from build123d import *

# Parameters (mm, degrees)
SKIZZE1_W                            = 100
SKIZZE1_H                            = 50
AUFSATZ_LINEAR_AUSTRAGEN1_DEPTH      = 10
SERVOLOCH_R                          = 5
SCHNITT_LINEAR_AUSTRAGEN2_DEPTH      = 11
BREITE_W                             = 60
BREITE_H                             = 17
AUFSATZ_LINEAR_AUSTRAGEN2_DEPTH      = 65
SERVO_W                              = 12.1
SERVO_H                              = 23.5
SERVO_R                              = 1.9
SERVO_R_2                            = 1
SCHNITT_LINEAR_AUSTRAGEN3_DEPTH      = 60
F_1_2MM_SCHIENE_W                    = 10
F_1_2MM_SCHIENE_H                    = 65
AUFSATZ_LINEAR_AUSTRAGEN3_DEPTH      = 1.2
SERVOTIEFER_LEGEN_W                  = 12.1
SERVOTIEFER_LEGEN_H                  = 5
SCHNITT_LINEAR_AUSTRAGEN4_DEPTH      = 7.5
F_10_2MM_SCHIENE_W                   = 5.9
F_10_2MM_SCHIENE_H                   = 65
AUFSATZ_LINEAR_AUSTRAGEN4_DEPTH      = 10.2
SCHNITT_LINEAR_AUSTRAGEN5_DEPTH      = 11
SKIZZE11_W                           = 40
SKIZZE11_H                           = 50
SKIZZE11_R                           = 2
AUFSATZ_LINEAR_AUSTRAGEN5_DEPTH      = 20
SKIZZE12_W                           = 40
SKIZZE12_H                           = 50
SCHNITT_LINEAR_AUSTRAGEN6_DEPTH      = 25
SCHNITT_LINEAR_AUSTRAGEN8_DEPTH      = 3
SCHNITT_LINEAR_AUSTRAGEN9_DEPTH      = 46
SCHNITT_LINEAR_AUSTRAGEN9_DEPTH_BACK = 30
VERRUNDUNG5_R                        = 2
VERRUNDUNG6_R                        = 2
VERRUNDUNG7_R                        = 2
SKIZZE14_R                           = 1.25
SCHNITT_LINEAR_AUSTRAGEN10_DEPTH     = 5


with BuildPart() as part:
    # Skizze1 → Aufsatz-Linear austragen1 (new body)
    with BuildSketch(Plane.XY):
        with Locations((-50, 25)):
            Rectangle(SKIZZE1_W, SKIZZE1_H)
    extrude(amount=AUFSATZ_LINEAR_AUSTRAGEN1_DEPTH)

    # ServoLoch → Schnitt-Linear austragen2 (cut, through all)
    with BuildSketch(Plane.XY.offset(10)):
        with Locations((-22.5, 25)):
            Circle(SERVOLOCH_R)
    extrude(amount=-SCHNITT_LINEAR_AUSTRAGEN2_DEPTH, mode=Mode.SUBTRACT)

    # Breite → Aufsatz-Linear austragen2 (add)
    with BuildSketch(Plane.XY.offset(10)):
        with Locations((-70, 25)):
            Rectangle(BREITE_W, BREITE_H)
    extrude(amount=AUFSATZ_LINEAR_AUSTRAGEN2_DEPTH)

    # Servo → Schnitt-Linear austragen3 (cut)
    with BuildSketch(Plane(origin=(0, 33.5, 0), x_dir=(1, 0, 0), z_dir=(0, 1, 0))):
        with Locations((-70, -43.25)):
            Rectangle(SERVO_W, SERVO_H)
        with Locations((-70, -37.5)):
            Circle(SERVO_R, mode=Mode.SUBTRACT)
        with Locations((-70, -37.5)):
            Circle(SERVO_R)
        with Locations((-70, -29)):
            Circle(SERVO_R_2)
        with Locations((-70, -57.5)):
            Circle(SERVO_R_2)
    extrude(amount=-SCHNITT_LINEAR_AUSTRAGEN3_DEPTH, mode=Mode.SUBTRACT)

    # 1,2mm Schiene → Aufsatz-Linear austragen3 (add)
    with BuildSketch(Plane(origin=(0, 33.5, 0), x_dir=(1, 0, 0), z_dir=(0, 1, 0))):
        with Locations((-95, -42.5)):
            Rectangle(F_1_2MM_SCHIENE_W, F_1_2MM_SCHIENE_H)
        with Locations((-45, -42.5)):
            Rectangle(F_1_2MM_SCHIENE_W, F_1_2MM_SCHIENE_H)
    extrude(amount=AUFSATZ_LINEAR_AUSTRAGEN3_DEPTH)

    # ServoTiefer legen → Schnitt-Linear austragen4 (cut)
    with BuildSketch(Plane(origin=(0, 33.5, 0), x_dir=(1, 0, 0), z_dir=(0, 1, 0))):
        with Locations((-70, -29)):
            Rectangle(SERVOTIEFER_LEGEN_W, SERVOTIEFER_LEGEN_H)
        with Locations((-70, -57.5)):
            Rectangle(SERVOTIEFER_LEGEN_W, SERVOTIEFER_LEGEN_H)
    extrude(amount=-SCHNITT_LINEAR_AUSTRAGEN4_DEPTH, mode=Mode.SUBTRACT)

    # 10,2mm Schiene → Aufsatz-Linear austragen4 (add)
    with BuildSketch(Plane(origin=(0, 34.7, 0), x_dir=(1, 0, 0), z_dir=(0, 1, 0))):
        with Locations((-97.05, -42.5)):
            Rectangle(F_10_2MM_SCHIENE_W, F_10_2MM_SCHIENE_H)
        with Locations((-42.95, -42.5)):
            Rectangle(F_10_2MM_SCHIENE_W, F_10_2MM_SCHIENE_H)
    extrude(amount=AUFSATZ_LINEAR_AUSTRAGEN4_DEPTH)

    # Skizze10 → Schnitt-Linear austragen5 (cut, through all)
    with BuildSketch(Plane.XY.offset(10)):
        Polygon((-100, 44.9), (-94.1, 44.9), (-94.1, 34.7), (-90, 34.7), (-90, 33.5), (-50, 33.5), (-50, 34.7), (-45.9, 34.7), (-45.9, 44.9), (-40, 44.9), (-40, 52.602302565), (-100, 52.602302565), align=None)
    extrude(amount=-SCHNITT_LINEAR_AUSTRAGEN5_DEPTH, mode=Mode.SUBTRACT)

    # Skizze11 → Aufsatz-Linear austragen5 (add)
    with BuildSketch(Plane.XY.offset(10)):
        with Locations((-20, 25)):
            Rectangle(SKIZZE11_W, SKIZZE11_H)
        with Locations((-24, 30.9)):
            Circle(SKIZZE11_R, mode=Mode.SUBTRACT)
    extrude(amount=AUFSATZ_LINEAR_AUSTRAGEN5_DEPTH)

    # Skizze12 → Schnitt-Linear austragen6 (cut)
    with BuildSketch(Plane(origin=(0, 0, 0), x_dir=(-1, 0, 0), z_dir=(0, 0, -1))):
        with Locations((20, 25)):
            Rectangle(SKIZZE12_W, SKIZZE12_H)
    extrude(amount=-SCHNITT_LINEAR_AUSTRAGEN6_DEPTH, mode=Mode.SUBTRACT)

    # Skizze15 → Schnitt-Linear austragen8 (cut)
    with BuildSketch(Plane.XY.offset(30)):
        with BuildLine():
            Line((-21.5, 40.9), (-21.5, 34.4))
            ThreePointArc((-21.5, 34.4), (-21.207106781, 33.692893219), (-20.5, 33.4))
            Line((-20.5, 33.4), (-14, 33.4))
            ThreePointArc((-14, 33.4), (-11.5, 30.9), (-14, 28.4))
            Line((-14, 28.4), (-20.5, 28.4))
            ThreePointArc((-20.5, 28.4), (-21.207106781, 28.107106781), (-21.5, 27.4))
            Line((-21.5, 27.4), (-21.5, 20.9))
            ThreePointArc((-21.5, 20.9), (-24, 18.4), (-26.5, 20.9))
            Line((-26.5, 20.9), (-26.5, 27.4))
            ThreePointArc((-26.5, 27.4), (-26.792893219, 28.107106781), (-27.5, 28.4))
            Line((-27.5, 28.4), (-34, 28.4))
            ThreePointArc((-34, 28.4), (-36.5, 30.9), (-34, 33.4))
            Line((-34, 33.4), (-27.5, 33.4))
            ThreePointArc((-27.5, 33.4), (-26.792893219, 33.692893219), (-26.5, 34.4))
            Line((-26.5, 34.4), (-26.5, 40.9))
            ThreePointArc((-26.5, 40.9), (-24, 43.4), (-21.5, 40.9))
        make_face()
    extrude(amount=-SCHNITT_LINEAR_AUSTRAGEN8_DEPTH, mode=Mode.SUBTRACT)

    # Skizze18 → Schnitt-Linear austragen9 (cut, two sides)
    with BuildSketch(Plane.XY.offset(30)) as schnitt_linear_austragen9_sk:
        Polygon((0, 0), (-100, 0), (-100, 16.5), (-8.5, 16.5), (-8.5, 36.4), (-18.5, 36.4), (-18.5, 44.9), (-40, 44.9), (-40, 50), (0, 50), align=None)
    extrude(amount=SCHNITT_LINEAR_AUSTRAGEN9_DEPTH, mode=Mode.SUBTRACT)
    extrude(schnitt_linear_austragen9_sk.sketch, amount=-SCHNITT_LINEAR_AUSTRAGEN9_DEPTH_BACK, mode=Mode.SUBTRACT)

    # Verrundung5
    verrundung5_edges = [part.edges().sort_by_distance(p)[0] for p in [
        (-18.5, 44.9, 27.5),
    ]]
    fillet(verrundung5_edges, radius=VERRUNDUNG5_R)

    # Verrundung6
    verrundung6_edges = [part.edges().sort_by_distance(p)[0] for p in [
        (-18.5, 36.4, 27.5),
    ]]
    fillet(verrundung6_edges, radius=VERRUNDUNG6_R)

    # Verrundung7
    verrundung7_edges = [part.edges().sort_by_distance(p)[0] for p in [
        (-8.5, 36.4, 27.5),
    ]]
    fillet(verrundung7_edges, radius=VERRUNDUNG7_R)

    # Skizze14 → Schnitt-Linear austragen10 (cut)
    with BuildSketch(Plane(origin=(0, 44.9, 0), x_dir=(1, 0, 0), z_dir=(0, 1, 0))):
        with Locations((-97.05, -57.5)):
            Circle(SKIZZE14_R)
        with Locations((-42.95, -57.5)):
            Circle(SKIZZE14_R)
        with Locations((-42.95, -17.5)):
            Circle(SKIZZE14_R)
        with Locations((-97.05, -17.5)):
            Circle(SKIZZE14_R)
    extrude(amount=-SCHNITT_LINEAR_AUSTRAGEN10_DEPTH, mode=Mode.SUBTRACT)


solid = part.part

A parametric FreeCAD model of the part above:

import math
import FreeCAD as App
import Part
import Sketcher
from FreeCAD import Vector


def edges_at(feature, points):
    """Names of the edges that pass closest to the given points."""
    edges = feature.Shape.Edges
    near = lambda p: min(range(len(edges)), key=lambda i: edges[i].distToShape(Part.Vertex(*p))[0])
    return sorted({f"Edge{near(p) + 1}" for p in points})

doc = App.newDocument("Part")
body = doc.addObject("PartDesign::Body", "Body")

# Sketch on XY plane
sketch1 = body.newObject("Sketcher::SketchObject", "Sketch")
sketch1.AttachmentSupport = (doc.getObject("XY_Plane"), [""])
sketch1.MapMode = "FlatFace"
sketch1.addGeometry([
    Part.LineSegment(Vector(-100, 50, 0), Vector(-100, 0, 0)),
    Part.LineSegment(Vector(-100, 0, 0), Vector(0, 0, 0)),
    Part.LineSegment(Vector(0, 0, 0), Vector(0, 50, 0)),
    Part.LineSegment(Vector(0, 50, 0), Vector(-100, 50, 0)),
], False)
sketch1.addConstraint([
    Sketcher.Constraint("Coincident", 0, 2, 1, 1),
    Sketcher.Constraint("Coincident", 1, 2, 2, 1),
    Sketcher.Constraint("Coincident", 2, 2, 3, 1),
    Sketcher.Constraint("Coincident", 3, 2, 0, 1),
    Sketcher.Constraint("Vertical", 0),
    Sketcher.Constraint("Horizontal", 1),
    Sketcher.Constraint("Vertical", 2),
    Sketcher.Constraint("Horizontal", 3),
    Sketcher.Constraint("Coincident", 1, 2, -1, 1),
    Sketcher.Constraint("DistanceX", 1, 1, 1, 2, 100.0),
    Sketcher.Constraint("DistanceY", 0, 2, 0, 1, 50.0),
])
pad1 = body.newObject("PartDesign::Pad", "Pad")
pad1.Profile = sketch1
pad1.Length = 10

# Sketch on XY plane
sketch2 = body.newObject("Sketcher::SketchObject", "Sketch001")
sketch2.AttachmentSupport = (doc.getObject("XY_Plane"), [""])
sketch2.MapMode = "FlatFace"
sketch2.AttachmentOffset = App.Placement(Vector(0, 0, 10), App.Rotation())
sketch2.addGeometry(Part.Circle(Vector(-22, 25, 0), Vector(0, 0, 1), 5), False)
sketch2.addConstraint([
    Sketcher.Constraint("Diameter", 0, 10.0),
    Sketcher.Constraint("DistanceY", -1, 1, 0, 3, 25.0),
    Sketcher.Constraint("DistanceX", 0, 3, -1, 1, 22.5),
])
pocket1 = body.newObject("PartDesign::Pocket", "Pocket")
pocket1.Profile = sketch2
pocket1.Type = "ThroughAll"

# Sketch on XY plane
sketch3 = body.newObject("Sketcher::SketchObject", "Sketch002")
sketch3.AttachmentSupport = (doc.getObject("XY_Plane"), [""])
sketch3.MapMode = "FlatFace"
sketch3.AttachmentOffset = App.Placement(Vector(0, 0, 10), App.Rotation())
sketch3.addGeometry([
    Part.LineSegment(Vector(-100, 34, 0), Vector(-100, 16, 0)),
    Part.LineSegment(Vector(-100, 16, 0), Vector(-40, 16, 0)),
    Part.LineSegment(Vector(-40, 16, 0), Vector(-40, 34, 0)),
    Part.LineSegment(Vector(-40, 34, 0), Vector(-100, 34, 0)),
], False)
sketch3.addConstraint([
    Sketcher.Constraint("Coincident", 0, 2, 1, 1),
    Sketcher.Constraint("Coincident", 1, 2, 2, 1),
    Sketcher.Constraint("Coincident", 2, 2, 3, 1),
    Sketcher.Constraint("Coincident", 3, 2, 0, 1),
    Sketcher.Constraint("Vertical", 0),
    Sketcher.Constraint("Horizontal", 1),
    Sketcher.Constraint("Vertical", 2),
    Sketcher.Constraint("Horizontal", 3),
    Sketcher.Constraint("DistanceX", 1, 1, 1, 2, 60.0),
    Sketcher.Constraint("DistanceY", 0, 2, 0, 1, 17.0),
    Sketcher.Constraint("DistanceX", 0, 2, -1, 1, 100.0),
    Sketcher.Constraint("DistanceY", -1, 1, 0, 2, 16.5),
])
pad2 = body.newObject("PartDesign::Pad", "Pad001")
pad2.Profile = sketch3
pad2.Length = 65

# Sketch on XZ plane
sketch4 = body.newObject("Sketcher::SketchObject", "Sketch003")
sketch4.AttachmentSupport = (doc.getObject("XZ_Plane"), [""])
sketch4.MapMode = "FlatFace"
sketch4.AttachmentOffset = App.Placement(Vector(0, 0, -33.5), App.Rotation())
sketch4.addGeometry([
    Part.LineSegment(Vector(-76, 31.5, 0), Vector(-76, 55, 0)),  # 0
    Part.LineSegment(Vector(-76, 55, 0), Vector(-64, 55, 0)),  # 1
    Part.LineSegment(Vector(-64, 55, 0), Vector(-64, 31.5, 0)),  # 2
    Part.LineSegment(Vector(-64, 31.5, 0), Vector(-76, 31.5, 0)),  # 3
    Part.Circle(Vector(-70, 29, 0), Vector(0, 0, 1), 1),  # 4
    Part.Circle(Vector(-70, 57.5, 0), Vector(0, 0, 1), 1),  # 5
], False)
sketch4.addConstraint([
    Sketcher.Constraint("Coincident", 0, 2, 1, 1),
    Sketcher.Constraint("Coincident", 1, 2, 2, 1),
    Sketcher.Constraint("Coincident", 2, 2, 3, 1),
    Sketcher.Constraint("Coincident", 3, 2, 0, 1),
    Sketcher.Constraint("Vertical", 0),
    Sketcher.Constraint("Horizontal", 1),
    Sketcher.Constraint("Vertical", 2),
    Sketcher.Constraint("Horizontal", 3),
    Sketcher.Constraint("Equal", 4, 5),
    Sketcher.Constraint("Vertical", 4, 3, 5, 3),
    Sketcher.Constraint("Diameter", 4, 2.0),
    Sketcher.Constraint("DistanceX", 1, 1, 1, 2, 12.1),
    Sketcher.Constraint("DistanceY", 0, 1, 0, 2, 23.5),
    Sketcher.Constraint("DistanceX", 4, 3, -1, 1, 70.0),
    Sketcher.Constraint("DistanceY", -1, 1, 4, 3, 29.0),
    Sketcher.Constraint("DistanceY", -1, 1, 0, 2, 55.0),
    Sketcher.Constraint("DistanceY", 2, 2, 5, 3, 26.0),
    Sketcher.Constraint("DistanceX", 0, 2, -1, 1, 76.05),
])
pocket2 = body.newObject("PartDesign::Pocket", "Pocket001")
pocket2.Profile = sketch4
pocket2.Length = 60
pocket2.Reversed = True

# Sketch on XZ plane
sketch5 = body.newObject("Sketcher::SketchObject", "Sketch004")
sketch5.AttachmentSupport = (doc.getObject("XZ_Plane"), [""])
sketch5.MapMode = "FlatFace"
sketch5.AttachmentOffset = App.Placement(Vector(0, 0, -33.5), App.Rotation())
sketch5.addGeometry([
    Part.LineSegment(Vector(-100, 10, 0), Vector(-100, 75, 0)),  # 0
    Part.LineSegment(Vector(-100, 75, 0), Vector(-90, 75, 0)),  # 1
    Part.LineSegment(Vector(-90, 75, 0), Vector(-90, 10, 0)),  # 2
    Part.LineSegment(Vector(-90, 10, 0), Vector(-100, 10, 0)),  # 3
    Part.LineSegment(Vector(-50, 10, 0), Vector(-50, 75, 0)),  # 4
    Part.LineSegment(Vector(-50, 75, 0), Vector(-40, 75, 0)),  # 5
    Part.LineSegment(Vector(-40, 75, 0), Vector(-40, 10, 0)),  # 6
    Part.LineSegment(Vector(-40, 10, 0), Vector(-50, 10, 0)),  # 7
], False)
sketch5.addConstraint([
    Sketcher.Constraint("Coincident", 0, 2, 1, 1),
    Sketcher.Constraint("Coincident", 1, 2, 2, 1),
    Sketcher.Constraint("Coincident", 2, 2, 3, 1),
    Sketcher.Constraint("Coincident", 3, 2, 0, 1),
    Sketcher.Constraint("Coincident", 4, 2, 5, 1),
    Sketcher.Constraint("Coincident", 5, 2, 6, 1),
    Sketcher.Constraint("Coincident", 6, 2, 7, 1),
    Sketcher.Constraint("Coincident", 7, 2, 4, 1),
    Sketcher.Constraint("Vertical", 0),
    Sketcher.Constraint("Horizontal", 1),
    Sketcher.Constraint("Vertical", 2),
    Sketcher.Constraint("Horizontal", 3),
    Sketcher.Constraint("Vertical", 4),
    Sketcher.Constraint("Horizontal", 5),
    Sketcher.Constraint("Vertical", 6),
    Sketcher.Constraint("Horizontal", 7),
    Sketcher.Constraint("Horizontal", 1, 2, 4, 2),
    Sketcher.Constraint("Horizontal", 3, 2, 6, 2),
    Sketcher.Constraint("Equal", 3, 5),
    Sketcher.Constraint("DistanceX", 1, 1, 1, 2, 10.0),
    Sketcher.Constraint("DistanceY", 0, 1, 0, 2, 65.0),
    Sketcher.Constraint("DistanceX", 0, 2, -1, 1, 100.0),
    Sketcher.Constraint("DistanceY", -1, 1, 0, 2, 75.0),
    Sketcher.Constraint("DistanceX", 4, 2, -1, 1, 50.0),
])
pad3 = body.newObject("PartDesign::Pad", "Pad002")
pad3.Profile = sketch5
pad3.Length = 1.2
pad3.Reversed = True

# Sketch on XZ plane
sketch6 = body.newObject("Sketcher::SketchObject", "Sketch005")
sketch6.AttachmentSupport = (doc.getObject("XZ_Plane"), [""])
sketch6.MapMode = "FlatFace"
sketch6.AttachmentOffset = App.Placement(Vector(0, 0, -33.5), App.Rotation())
sketch6.addGeometry([
    Part.LineSegment(Vector(-76, 26, 0), Vector(-76, 32, 0)),  # 0
    Part.LineSegment(Vector(-76, 32, 0), Vector(-64, 32, 0)),  # 1
    Part.LineSegment(Vector(-64, 32, 0), Vector(-64, 26, 0)),  # 2
    Part.LineSegment(Vector(-64, 26, 0), Vector(-76, 26, 0)),  # 3
    Part.LineSegment(Vector(-76, 55, 0), Vector(-76, 60, 0)),  # 4
    Part.LineSegment(Vector(-76, 60, 0), Vector(-64, 60, 0)),  # 5
    Part.LineSegment(Vector(-64, 60, 0), Vector(-64, 55, 0)),  # 6
    Part.LineSegment(Vector(-64, 55, 0), Vector(-76, 55, 0)),  # 7
], False)
sketch6.addConstraint([
    Sketcher.Constraint("Coincident", 0, 2, 1, 1),
    Sketcher.Constraint("Coincident", 1, 2, 2, 1),
    Sketcher.Constraint("Coincident", 2, 2, 3, 1),
    Sketcher.Constraint("Coincident", 3, 2, 0, 1),
    Sketcher.Constraint("Coincident", 4, 2, 5, 1),
    Sketcher.Constraint("Coincident", 5, 2, 6, 1),
    Sketcher.Constraint("Coincident", 6, 2, 7, 1),
    Sketcher.Constraint("Coincident", 7, 2, 4, 1),
    Sketcher.Constraint("Vertical", 0),
    Sketcher.Constraint("Horizontal", 1),
    Sketcher.Constraint("Vertical", 2),
    Sketcher.Constraint("Horizontal", 3),
    Sketcher.Constraint("Vertical", 4),
    Sketcher.Constraint("Horizontal", 5),
    Sketcher.Constraint("Vertical", 6),
    Sketcher.Constraint("Horizontal", 7),
    Sketcher.Constraint("Vertical", 3, 2, 4, 2),
    Sketcher.Constraint("Vertical", 2, 2, 5, 2),
    Sketcher.Constraint("Equal", 2, 4),
    Sketcher.Constraint("DistanceY", 0, 1, 0, 2, 5.0),
    Sketcher.Constraint("DistanceX", 1, 1, 1, 2, 12.1),
    Sketcher.Constraint("DistanceY", -1, 1, 4, 2, 60.0),
    Sketcher.Constraint("DistanceY", -1, 1, 0, 2, 31.5),
    Sketcher.Constraint("DistanceX", 0, 2, -1, 1, 76.05),
])
pocket3 = body.newObject("PartDesign::Pocket", "Pocket002")
pocket3.Profile = sketch6
pocket3.Length = 7.5
pocket3.Reversed = True

# Sketch on XZ plane
sketch7 = body.newObject("Sketcher::SketchObject", "Sketch006")
sketch7.AttachmentSupport = (doc.getObject("XZ_Plane"), [""])
sketch7.MapMode = "FlatFace"
sketch7.AttachmentOffset = App.Placement(Vector(0, 0, -34.7), App.Rotation())
sketch7.addGeometry([
    Part.LineSegment(Vector(-100, 10, 0), Vector(-100, 75, 0)),  # 0
    Part.LineSegment(Vector(-100, 75, 0), Vector(-94, 75, 0)),  # 1
    Part.LineSegment(Vector(-94, 75, 0), Vector(-94, 10, 0)),  # 2
    Part.LineSegment(Vector(-94, 10, 0), Vector(-100, 10, 0)),  # 3
    Part.LineSegment(Vector(-46, 10, 0), Vector(-46, 75, 0)),  # 4
    Part.LineSegment(Vector(-46, 75, 0), Vector(-40, 75, 0)),  # 5
    Part.LineSegment(Vector(-40, 75, 0), Vector(-40, 10, 0)),  # 6
    Part.LineSegment(Vector(-40, 10, 0), Vector(-46, 10, 0)),  # 7
], False)
sketch7.addConstraint([
    Sketcher.Constraint("Coincident", 0, 2, 1, 1),
    Sketcher.Constraint("Coincident", 1, 2, 2, 1),
    Sketcher.Constraint("Coincident", 2, 2, 3, 1),
    Sketcher.Constraint("Coincident", 3, 2, 0, 1),
    Sketcher.Constraint("Coincident", 4, 2, 5, 1),
    Sketcher.Constraint("Coincident", 5, 2, 6, 1),
    Sketcher.Constraint("Coincident", 6, 2, 7, 1),
    Sketcher.Constraint("Coincident", 7, 2, 4, 1),
    Sketcher.Constraint("Vertical", 0),
    Sketcher.Constraint("Horizontal", 1),
    Sketcher.Constraint("Vertical", 2),
    Sketcher.Constraint("Horizontal", 3),
    Sketcher.Constraint("Vertical", 4),
    Sketcher.Constraint("Horizontal", 5),
    Sketcher.Constraint("Vertical", 6),
    Sketcher.Constraint("Horizontal", 7),
    Sketcher.Constraint("Horizontal", 1, 2, 4, 2),
    Sketcher.Constraint("Horizontal", 3, 2, 6, 2),
    Sketcher.Constraint("Equal", 3, 5),
    Sketcher.Constraint("DistanceY", 0, 1, 0, 2, 65.0),
    Sketcher.Constraint("DistanceX", 1, 1, 1, 2, 5.9),
    Sketcher.Constraint("DistanceX", 0, 2, -1, 1, 100.0),
    Sketcher.Constraint("DistanceY", -1, 1, 0, 2, 75.0),
    Sketcher.Constraint("DistanceX", 5, 2, -1, 1, 40.0),
])
pad4 = body.newObject("PartDesign::Pad", "Pad003")
pad4.Profile = sketch7
pad4.Length = 10.2
pad4.Reversed = True

# Sketch on XY plane
sketch8 = body.newObject("Sketcher::SketchObject", "Sketch007")
sketch8.AttachmentSupport = (doc.getObject("XY_Plane"), [""])
sketch8.MapMode = "FlatFace"
sketch8.AttachmentOffset = App.Placement(Vector(0, 0, 10), App.Rotation())
sketch8.addGeometry([
    Part.LineSegment(Vector(-100, 44.9, 0), Vector(-94.1, 44.9, 0)),  # 0
    Part.LineSegment(Vector(-94.1, 44.9, 0), Vector(-94.1, 34.7, 0)),  # 1
    Part.LineSegment(Vector(-94.1, 34.7, 0), Vector(-90, 34.7, 0)),  # 2
    Part.LineSegment(Vector(-90, 34.7, 0), Vector(-90, 33.5, 0)),  # 3
    Part.LineSegment(Vector(-90, 33.5, 0), Vector(-50, 33.5, 0)),  # 4
    Part.LineSegment(Vector(-50, 33.5, 0), Vector(-50, 34.7, 0)),  # 5
    Part.LineSegment(Vector(-50, 34.7, 0), Vector(-45.9, 34.7, 0)),  # 6
    Part.LineSegment(Vector(-45.9, 34.7, 0), Vector(-45.9, 44.9, 0)),  # 7
    Part.LineSegment(Vector(-45.9, 44.9, 0), Vector(-40, 44.9, 0)),  # 8
    Part.LineSegment(Vector(-40, 44.9, 0), Vector(-40, 52.6, 0)),  # 9
    Part.LineSegment(Vector(-40, 52.6, 0), Vector(-100, 52.6, 0)),  # 10
    Part.LineSegment(Vector(-100, 52.6, 0), Vector(-100, 44.9, 0)),  # 11
], False)
sketch8.addConstraint([
    Sketcher.Constraint("Coincident", 0, 2, 1, 1),
    Sketcher.Constraint("Coincident", 1, 2, 2, 1),
    Sketcher.Constraint("Coincident", 2, 2, 3, 1),
    Sketcher.Constraint("Coincident", 3, 2, 4, 1),
    Sketcher.Constraint("Coincident", 4, 2, 5, 1),
    Sketcher.Constraint("Coincident", 5, 2, 6, 1),
    Sketcher.Constraint("Coincident", 6, 2, 7, 1),
    Sketcher.Constraint("Coincident", 7, 2, 8, 1),
    Sketcher.Constraint("Coincident", 8, 2, 9, 1),
    Sketcher.Constraint("Coincident", 9, 2, 10, 1),
    Sketcher.Constraint("Coincident", 10, 2, 11, 1),
    Sketcher.Constraint("Coincident", 11, 2, 0, 1),
    Sketcher.Constraint("Horizontal", 0),
    Sketcher.Constraint("Vertical", 1),
    Sketcher.Constraint("Horizontal", 2),
    Sketcher.Constraint("Vertical", 3),
    Sketcher.Constraint("Horizontal", 4),
    Sketcher.Constraint("Vertical", 5),
    Sketcher.Constraint("Horizontal", 6),
    Sketcher.Constraint("Vertical", 7),
    Sketcher.Constraint("Horizontal", 8),
    Sketcher.Constraint("Vertical", 9),
    Sketcher.Constraint("Horizontal", 10),
    Sketcher.Constraint("Vertical", 11),
    Sketcher.Constraint("Horizontal", 2, 2, 5, 2),
    Sketcher.Constraint("Horizontal", 0, 2, 7, 2),
    Sketcher.Constraint("Equal", 2, 6),
    Sketcher.Constraint("Equal", 0, 8),
    Sketcher.Constraint("DistanceX", 4, 1, 4, 2, 40.0),
    Sketcher.Constraint("DistanceX", 10, 2, 10, 1, 60.0),
    Sketcher.Constraint("DistanceX", 0, 1, 0, 2, 5.9),
    Sketcher.Constraint("DistanceY", 1, 2, 1, 1, 10.2),
    Sketcher.Constraint("DistanceY", 3, 2, 3, 1, 1.2),
    Sketcher.Constraint("DistanceX", 2, 2, -1, 1, 90.0),
    Sketcher.Constraint("DistanceY", -1, 1, 0, 2, 44.9),
    Sketcher.Constraint("DistanceY", 9, 1, 9, 2, 7.702303),
])
pocket4 = body.newObject("PartDesign::Pocket", "Pocket003")
pocket4.Profile = sketch8
pocket4.Type = "ThroughAll"

# Sketch on XY plane
sketch9 = body.newObject("Sketcher::SketchObject", "Sketch008")
sketch9.AttachmentSupport = (doc.getObject("XY_Plane"), [""])
sketch9.MapMode = "FlatFace"
sketch9.AttachmentOffset = App.Placement(Vector(0, 0, 10), App.Rotation())
sketch9.addGeometry([
    Part.LineSegment(Vector(-40, 50, 0), Vector(-40, 0, 0)),  # 0
    Part.LineSegment(Vector(-40, 0, 0), Vector(0, 0, 0)),  # 1
    Part.LineSegment(Vector(0, 0, 0), Vector(0, 50, 0)),  # 2
    Part.LineSegment(Vector(0, 50, 0), Vector(-40, 50, 0)),  # 3
    Part.Circle(Vector(-24, 30.9, 0), Vector(0, 0, 1), 2),  # 4
], False)
sketch9.addConstraint([
    Sketcher.Constraint("Coincident", 0, 2, 1, 1),
    Sketcher.Constraint("Coincident", 1, 2, 2, 1),
    Sketcher.Constraint("Coincident", 2, 2, 3, 1),
    Sketcher.Constraint("Coincident", 3, 2, 0, 1),
    Sketcher.Constraint("Vertical", 0),
    Sketcher.Constraint("Horizontal", 1),
    Sketcher.Constraint("Vertical", 2),
    Sketcher.Constraint("Horizontal", 3),
    Sketcher.Constraint("Coincident", 1, 2, -1, 1),
    Sketcher.Constraint("Diameter", 4, 4.0),
    Sketcher.Constraint("DistanceX", 1, 1, 1, 2, 40.0),
    Sketcher.Constraint("DistanceY", 0, 2, 0, 1, 50.0),
    Sketcher.Constraint("DistanceX", 4, 3, -1, 1, 24.0),
    Sketcher.Constraint("DistanceY", -1, 1, 4, 3, 30.9),
])
pad5 = body.newObject("PartDesign::Pad", "Pad004")
pad5.Profile = sketch9
pad5.Length = 20

# Sketch on XY plane
sketch10 = body.newObject("Sketcher::SketchObject", "Sketch009")
sketch10.AttachmentSupport = (doc.getObject("XY_Plane"), [""])
sketch10.MapMode = "FlatFace"
sketch10.addGeometry([
    Part.LineSegment(Vector(0, 50, 0), Vector(0, 0, 0)),
    Part.LineSegment(Vector(0, 0, 0), Vector(-40, 0, 0)),
    Part.LineSegment(Vector(-40, 0, 0), Vector(-40, 50, 0)),
    Part.LineSegment(Vector(-40, 50, 0), Vector(0, 50, 0)),
], False)
sketch10.addConstraint([
    Sketcher.Constraint("Coincident", 0, 2, 1, 1),
    Sketcher.Constraint("Coincident", 1, 2, 2, 1),
    Sketcher.Constraint("Coincident", 2, 2, 3, 1),
    Sketcher.Constraint("Coincident", 3, 2, 0, 1),
    Sketcher.Constraint("Vertical", 0),
    Sketcher.Constraint("Horizontal", 1),
    Sketcher.Constraint("Vertical", 2),
    Sketcher.Constraint("Horizontal", 3),
    Sketcher.Constraint("Coincident", 0, 2, -1, 1),
    Sketcher.Constraint("DistanceX", 1, 2, 1, 1, 40.0),
    Sketcher.Constraint("DistanceY", 0, 2, 0, 1, 50.0),
])
pocket5 = body.newObject("PartDesign::Pocket", "Pocket004")
pocket5.Profile = sketch10
pocket5.Length = 25
pocket5.Reversed = True

# Sketch on XY plane
sketch11 = body.newObject("Sketcher::SketchObject", "Sketch010")
sketch11.AttachmentSupport = (doc.getObject("XY_Plane"), [""])
sketch11.MapMode = "FlatFace"
sketch11.AttachmentOffset = App.Placement(Vector(0, 0, 30), App.Rotation())
sketch11.addGeometry([
    Part.LineSegment(Vector(-21.5, 34.4, 0), Vector(-21.5, 40.9, 0)),  # 0
    Part.ArcOfCircle(Part.Circle(Vector(-24, 40.9, 0), Vector(0, 0, 1), 2.5), math.radians(0), math.radians(180)),  # 1
    Part.LineSegment(Vector(-26.5, 40.9, 0), Vector(-26.5, 34.4, 0)),  # 2
    Part.ArcOfCircle(Part.Circle(Vector(-27.5, 34.4, 0), Vector(0, 0, 1), 1), math.radians(-90), math.radians(0)),  # 3
    Part.LineSegment(Vector(-27.5, 33.4, 0), Vector(-34, 33.4, 0)),  # 4
    Part.ArcOfCircle(Part.Circle(Vector(-34, 30.9, 0), Vector(0, 0, 1), 2.5), math.radians(90), math.radians(270)),  # 5
    Part.LineSegment(Vector(-34, 28.4, 0), Vector(-27.5, 28.4, 0)),  # 6
    Part.ArcOfCircle(Part.Circle(Vector(-27.5, 27.4, 0), Vector(0, 0, 1), 1), math.radians(0), math.radians(90)),  # 7
    Part.LineSegment(Vector(-26.5, 27.4, 0), Vector(-26.5, 20.9, 0)),  # 8
    Part.ArcOfCircle(Part.Circle(Vector(-24, 20.9, 0), Vector(0, 0, 1), 2.5), math.radians(180), math.radians(360)),  # 9
    Part.LineSegment(Vector(-21.5, 20.9, 0), Vector(-21.5, 27.4, 0)),  # 10
    Part.ArcOfCircle(Part.Circle(Vector(-20.5, 27.4, 0), Vector(0, 0, 1), 1), math.radians(90), math.radians(180)),  # 11
    Part.LineSegment(Vector(-20.5, 28.4, 0), Vector(-14, 28.4, 0)),  # 12
    Part.ArcOfCircle(Part.Circle(Vector(-14, 30.9, 0), Vector(0, 0, 1), 2.5), math.radians(-90), math.radians(90)),  # 13
    Part.LineSegment(Vector(-14, 33.4, 0), Vector(-20.5, 33.4, 0)),  # 14
    Part.ArcOfCircle(Part.Circle(Vector(-20.5, 34.4, 0), Vector(0, 0, 1), 1), math.radians(-180), math.radians(-90)),  # 15
], False)
sketch11.addConstraint([
    Sketcher.Constraint("Tangent", 0, 2, 1, 1),
    Sketcher.Constraint("Tangent", 1, 2, 2, 1),
    Sketcher.Constraint("Tangent", 2, 2, 3, 2),
    Sketcher.Constraint("Tangent", 3, 1, 4, 1),
    Sketcher.Constraint("Tangent", 4, 2, 5, 1),
    Sketcher.Constraint("Tangent", 5, 2, 6, 1),
    Sketcher.Constraint("Tangent", 6, 2, 7, 2),
    Sketcher.Constraint("Tangent", 7, 1, 8, 1),
    Sketcher.Constraint("Tangent", 8, 2, 9, 1),
    Sketcher.Constraint("Tangent", 9, 2, 10, 1),
    Sketcher.Constraint("Tangent", 10, 2, 11, 2),
    Sketcher.Constraint("Tangent", 11, 1, 12, 1),
    Sketcher.Constraint("Tangent", 12, 2, 13, 1),
    Sketcher.Constraint("Tangent", 13, 2, 14, 1),
    Sketcher.Constraint("Tangent", 14, 2, 15, 2),
    Sketcher.Constraint("Tangent", 15, 1, 0, 1),
    Sketcher.Constraint("Vertical", 0),
    Sketcher.Constraint("Vertical", 2),
    Sketcher.Constraint("Horizontal", 4),
    Sketcher.Constraint("Horizontal", 6),
    Sketcher.Constraint("Vertical", 8),
    Sketcher.Constraint("Vertical", 10),
    Sketcher.Constraint("Horizontal", 12),
    Sketcher.Constraint("Horizontal", 14),
    Sketcher.Constraint("Equal", 1, 5),
    Sketcher.Constraint("Equal", 3, 7),
    Sketcher.Constraint("Equal", 5, 9),
    Sketcher.Constraint("Equal", 7, 11),
    Sketcher.Constraint("Equal", 9, 13),
    Sketcher.Constraint("Equal", 11, 15),
    Sketcher.Constraint("Horizontal", 7, 3, 11, 3),
    Sketcher.Constraint("Vertical", 3, 3, 7, 3),
    Sketcher.Constraint("Equal", 6, 12),
    Sketcher.Constraint("Equal", 14, 0),
    Sketcher.Constraint("Equal", 2, 8),
    Sketcher.Constraint("Radius", 3, 1.0),
    Sketcher.Constraint("Radius", 1, 2.5),
    Sketcher.Constraint("DistanceX", 4, 2, 4, 1, 6.5),
    Sketcher.Constraint("DistanceX", 1, 3, -1, 1, 24.0),
    Sketcher.Constraint("DistanceY", -1, 1, 1, 3, 40.9),
])
pocket6 = body.newObject("PartDesign::Pocket", "Pocket005")
pocket6.Profile = sketch11
pocket6.Length = 3

# Sketch on XY plane
sketch12 = body.newObject("Sketcher::SketchObject", "Sketch011")
sketch12.AttachmentSupport = (doc.getObject("XY_Plane"), [""])
sketch12.MapMode = "FlatFace"
sketch12.AttachmentOffset = App.Placement(Vector(0, 0, 30), App.Rotation())
sketch12.addGeometry([
    Part.LineSegment(Vector(-100, 0, 0), Vector(0, 0, 0)),  # 0
    Part.LineSegment(Vector(0, 0, 0), Vector(0, 50, 0)),  # 1
    Part.LineSegment(Vector(0, 50, 0), Vector(-40, 50, 0)),  # 2
    Part.LineSegment(Vector(-40, 50, 0), Vector(-40, 45, 0)),  # 3
    Part.LineSegment(Vector(-40, 45, 0), Vector(-18, 45, 0)),  # 4
    Part.LineSegment(Vector(-18, 45, 0), Vector(-18, 36, 0)),  # 5
    Part.LineSegment(Vector(-18, 36, 0), Vector(-8, 36, 0)),  # 6
    Part.LineSegment(Vector(-8, 36, 0), Vector(-8, 16, 0)),  # 7
    Part.LineSegment(Vector(-8, 16, 0), Vector(-100, 16, 0)),  # 8
    Part.LineSegment(Vector(-100, 16, 0), Vector(-100, 0, 0)),  # 9
], False)
sketch12.addConstraint([
    Sketcher.Constraint("Coincident", 0, 2, 1, 1),
    Sketcher.Constraint("Coincident", 1, 2, 2, 1),
    Sketcher.Constraint("Coincident", 2, 2, 3, 1),
    Sketcher.Constraint("Coincident", 3, 2, 4, 1),
    Sketcher.Constraint("Coincident", 4, 2, 5, 1),
    Sketcher.Constraint("Coincident", 5, 2, 6, 1),
    Sketcher.Constraint("Coincident", 6, 2, 7, 1),
    Sketcher.Constraint("Coincident", 7, 2, 8, 1),
    Sketcher.Constraint("Coincident", 8, 2, 9, 1),
    Sketcher.Constraint("Coincident", 9, 2, 0, 1),
    Sketcher.Constraint("Horizontal", 0),
    Sketcher.Constraint("Vertical", 1),
    Sketcher.Constraint("Horizontal", 2),
    Sketcher.Constraint("Vertical", 3),
    Sketcher.Constraint("Horizontal", 4),
    Sketcher.Constraint("Vertical", 5),
    Sketcher.Constraint("Horizontal", 6),
    Sketcher.Constraint("Vertical", 7),
    Sketcher.Constraint("Horizontal", 8),
    Sketcher.Constraint("Vertical", 9),
    Sketcher.Constraint("Coincident", 0, 2, -1, 1),
    Sketcher.Constraint("DistanceX", 0, 1, 0, 2, 100.0),
    Sketcher.Constraint("DistanceX", 2, 2, 2, 1, 40.0),
    Sketcher.Constraint("DistanceX", 6, 1, 6, 2, 10.0),
    Sketcher.Constraint("DistanceY", 1, 1, 1, 2, 50.0),
    Sketcher.Constraint("DistanceX", 4, 1, 4, 2, 21.5),
    Sketcher.Constraint("DistanceY", 3, 2, 3, 1, 5.1),
    Sketcher.Constraint("DistanceY", 5, 2, 5, 1, 8.5),
    Sketcher.Constraint("DistanceY", 7, 2, 7, 1, 19.9),
])
pocket7 = body.newObject("PartDesign::Pocket", "Pocket006")
pocket7.Profile = sketch12
pocket7.Type = "ThroughAll"
pocket7.Midplane = True
doc.recompute()

fillet = body.newObject("PartDesign::Fillet", "Fillet")
fillet.Base = (pocket7, edges_at(pocket7, [(-18.5, 44.9, 27.5)]))
fillet.Radius = 2
doc.recompute()

fillet2 = body.newObject("PartDesign::Fillet", "Fillet001")
fillet2.Base = (fillet, edges_at(fillet, [(-18.5, 36.4, 27.5)]))
fillet2.Radius = 2
doc.recompute()

fillet3 = body.newObject("PartDesign::Fillet", "Fillet002")
fillet3.Base = (fillet2, edges_at(fillet2, [(-8.5, 36.4, 27.5)]))
fillet3.Radius = 2

# Sketch on XZ plane
sketch13 = body.newObject("Sketcher::SketchObject", "Sketch012")
sketch13.AttachmentSupport = (doc.getObject("XZ_Plane"), [""])
sketch13.MapMode = "FlatFace"
sketch13.AttachmentOffset = App.Placement(Vector(0, 0, -44.9), App.Rotation())
sketch13.addGeometry([
    Part.Circle(Vector(-97, 57.5, 0), Vector(0, 0, 1), 1.2),
    Part.Circle(Vector(-43, 57.5, 0), Vector(0, 0, 1), 1.2),
    Part.Circle(Vector(-43, 17.5, 0), Vector(0, 0, 1), 1.2),
    Part.Circle(Vector(-97, 17.5, 0), Vector(0, 0, 1), 1.2),
], False)
sketch13.addConstraint([
    Sketcher.Constraint("Equal", 0, 1),
    Sketcher.Constraint("Equal", 1, 2),
    Sketcher.Constraint("Equal", 2, 3),
    Sketcher.Constraint("Horizontal", 0, 3, 1, 3),
    Sketcher.Constraint("Horizontal", 2, 3, 3, 3),
    Sketcher.Constraint("Vertical", 1, 3, 2, 3),
    Sketcher.Constraint("Vertical", 0, 3, 3, 3),
    Sketcher.Constraint("Diameter", 0, 2.5),
    Sketcher.Constraint("DistanceY", 2, 3, 1, 3, 40.0),
    Sketcher.Constraint("DistanceY", -1, 1, 0, 3, 57.5),
    Sketcher.Constraint("DistanceX", 0, 3, 1, 3, 54.1),
    Sketcher.Constraint("DistanceX", 0, 3, -1, 1, 97.05),
])
pocket8 = body.newObject("PartDesign::Pocket", "Pocket007")
pocket8.Profile = sketch13
pocket8.Length = 5
pocket8.Reversed = True

doc.recompute()
